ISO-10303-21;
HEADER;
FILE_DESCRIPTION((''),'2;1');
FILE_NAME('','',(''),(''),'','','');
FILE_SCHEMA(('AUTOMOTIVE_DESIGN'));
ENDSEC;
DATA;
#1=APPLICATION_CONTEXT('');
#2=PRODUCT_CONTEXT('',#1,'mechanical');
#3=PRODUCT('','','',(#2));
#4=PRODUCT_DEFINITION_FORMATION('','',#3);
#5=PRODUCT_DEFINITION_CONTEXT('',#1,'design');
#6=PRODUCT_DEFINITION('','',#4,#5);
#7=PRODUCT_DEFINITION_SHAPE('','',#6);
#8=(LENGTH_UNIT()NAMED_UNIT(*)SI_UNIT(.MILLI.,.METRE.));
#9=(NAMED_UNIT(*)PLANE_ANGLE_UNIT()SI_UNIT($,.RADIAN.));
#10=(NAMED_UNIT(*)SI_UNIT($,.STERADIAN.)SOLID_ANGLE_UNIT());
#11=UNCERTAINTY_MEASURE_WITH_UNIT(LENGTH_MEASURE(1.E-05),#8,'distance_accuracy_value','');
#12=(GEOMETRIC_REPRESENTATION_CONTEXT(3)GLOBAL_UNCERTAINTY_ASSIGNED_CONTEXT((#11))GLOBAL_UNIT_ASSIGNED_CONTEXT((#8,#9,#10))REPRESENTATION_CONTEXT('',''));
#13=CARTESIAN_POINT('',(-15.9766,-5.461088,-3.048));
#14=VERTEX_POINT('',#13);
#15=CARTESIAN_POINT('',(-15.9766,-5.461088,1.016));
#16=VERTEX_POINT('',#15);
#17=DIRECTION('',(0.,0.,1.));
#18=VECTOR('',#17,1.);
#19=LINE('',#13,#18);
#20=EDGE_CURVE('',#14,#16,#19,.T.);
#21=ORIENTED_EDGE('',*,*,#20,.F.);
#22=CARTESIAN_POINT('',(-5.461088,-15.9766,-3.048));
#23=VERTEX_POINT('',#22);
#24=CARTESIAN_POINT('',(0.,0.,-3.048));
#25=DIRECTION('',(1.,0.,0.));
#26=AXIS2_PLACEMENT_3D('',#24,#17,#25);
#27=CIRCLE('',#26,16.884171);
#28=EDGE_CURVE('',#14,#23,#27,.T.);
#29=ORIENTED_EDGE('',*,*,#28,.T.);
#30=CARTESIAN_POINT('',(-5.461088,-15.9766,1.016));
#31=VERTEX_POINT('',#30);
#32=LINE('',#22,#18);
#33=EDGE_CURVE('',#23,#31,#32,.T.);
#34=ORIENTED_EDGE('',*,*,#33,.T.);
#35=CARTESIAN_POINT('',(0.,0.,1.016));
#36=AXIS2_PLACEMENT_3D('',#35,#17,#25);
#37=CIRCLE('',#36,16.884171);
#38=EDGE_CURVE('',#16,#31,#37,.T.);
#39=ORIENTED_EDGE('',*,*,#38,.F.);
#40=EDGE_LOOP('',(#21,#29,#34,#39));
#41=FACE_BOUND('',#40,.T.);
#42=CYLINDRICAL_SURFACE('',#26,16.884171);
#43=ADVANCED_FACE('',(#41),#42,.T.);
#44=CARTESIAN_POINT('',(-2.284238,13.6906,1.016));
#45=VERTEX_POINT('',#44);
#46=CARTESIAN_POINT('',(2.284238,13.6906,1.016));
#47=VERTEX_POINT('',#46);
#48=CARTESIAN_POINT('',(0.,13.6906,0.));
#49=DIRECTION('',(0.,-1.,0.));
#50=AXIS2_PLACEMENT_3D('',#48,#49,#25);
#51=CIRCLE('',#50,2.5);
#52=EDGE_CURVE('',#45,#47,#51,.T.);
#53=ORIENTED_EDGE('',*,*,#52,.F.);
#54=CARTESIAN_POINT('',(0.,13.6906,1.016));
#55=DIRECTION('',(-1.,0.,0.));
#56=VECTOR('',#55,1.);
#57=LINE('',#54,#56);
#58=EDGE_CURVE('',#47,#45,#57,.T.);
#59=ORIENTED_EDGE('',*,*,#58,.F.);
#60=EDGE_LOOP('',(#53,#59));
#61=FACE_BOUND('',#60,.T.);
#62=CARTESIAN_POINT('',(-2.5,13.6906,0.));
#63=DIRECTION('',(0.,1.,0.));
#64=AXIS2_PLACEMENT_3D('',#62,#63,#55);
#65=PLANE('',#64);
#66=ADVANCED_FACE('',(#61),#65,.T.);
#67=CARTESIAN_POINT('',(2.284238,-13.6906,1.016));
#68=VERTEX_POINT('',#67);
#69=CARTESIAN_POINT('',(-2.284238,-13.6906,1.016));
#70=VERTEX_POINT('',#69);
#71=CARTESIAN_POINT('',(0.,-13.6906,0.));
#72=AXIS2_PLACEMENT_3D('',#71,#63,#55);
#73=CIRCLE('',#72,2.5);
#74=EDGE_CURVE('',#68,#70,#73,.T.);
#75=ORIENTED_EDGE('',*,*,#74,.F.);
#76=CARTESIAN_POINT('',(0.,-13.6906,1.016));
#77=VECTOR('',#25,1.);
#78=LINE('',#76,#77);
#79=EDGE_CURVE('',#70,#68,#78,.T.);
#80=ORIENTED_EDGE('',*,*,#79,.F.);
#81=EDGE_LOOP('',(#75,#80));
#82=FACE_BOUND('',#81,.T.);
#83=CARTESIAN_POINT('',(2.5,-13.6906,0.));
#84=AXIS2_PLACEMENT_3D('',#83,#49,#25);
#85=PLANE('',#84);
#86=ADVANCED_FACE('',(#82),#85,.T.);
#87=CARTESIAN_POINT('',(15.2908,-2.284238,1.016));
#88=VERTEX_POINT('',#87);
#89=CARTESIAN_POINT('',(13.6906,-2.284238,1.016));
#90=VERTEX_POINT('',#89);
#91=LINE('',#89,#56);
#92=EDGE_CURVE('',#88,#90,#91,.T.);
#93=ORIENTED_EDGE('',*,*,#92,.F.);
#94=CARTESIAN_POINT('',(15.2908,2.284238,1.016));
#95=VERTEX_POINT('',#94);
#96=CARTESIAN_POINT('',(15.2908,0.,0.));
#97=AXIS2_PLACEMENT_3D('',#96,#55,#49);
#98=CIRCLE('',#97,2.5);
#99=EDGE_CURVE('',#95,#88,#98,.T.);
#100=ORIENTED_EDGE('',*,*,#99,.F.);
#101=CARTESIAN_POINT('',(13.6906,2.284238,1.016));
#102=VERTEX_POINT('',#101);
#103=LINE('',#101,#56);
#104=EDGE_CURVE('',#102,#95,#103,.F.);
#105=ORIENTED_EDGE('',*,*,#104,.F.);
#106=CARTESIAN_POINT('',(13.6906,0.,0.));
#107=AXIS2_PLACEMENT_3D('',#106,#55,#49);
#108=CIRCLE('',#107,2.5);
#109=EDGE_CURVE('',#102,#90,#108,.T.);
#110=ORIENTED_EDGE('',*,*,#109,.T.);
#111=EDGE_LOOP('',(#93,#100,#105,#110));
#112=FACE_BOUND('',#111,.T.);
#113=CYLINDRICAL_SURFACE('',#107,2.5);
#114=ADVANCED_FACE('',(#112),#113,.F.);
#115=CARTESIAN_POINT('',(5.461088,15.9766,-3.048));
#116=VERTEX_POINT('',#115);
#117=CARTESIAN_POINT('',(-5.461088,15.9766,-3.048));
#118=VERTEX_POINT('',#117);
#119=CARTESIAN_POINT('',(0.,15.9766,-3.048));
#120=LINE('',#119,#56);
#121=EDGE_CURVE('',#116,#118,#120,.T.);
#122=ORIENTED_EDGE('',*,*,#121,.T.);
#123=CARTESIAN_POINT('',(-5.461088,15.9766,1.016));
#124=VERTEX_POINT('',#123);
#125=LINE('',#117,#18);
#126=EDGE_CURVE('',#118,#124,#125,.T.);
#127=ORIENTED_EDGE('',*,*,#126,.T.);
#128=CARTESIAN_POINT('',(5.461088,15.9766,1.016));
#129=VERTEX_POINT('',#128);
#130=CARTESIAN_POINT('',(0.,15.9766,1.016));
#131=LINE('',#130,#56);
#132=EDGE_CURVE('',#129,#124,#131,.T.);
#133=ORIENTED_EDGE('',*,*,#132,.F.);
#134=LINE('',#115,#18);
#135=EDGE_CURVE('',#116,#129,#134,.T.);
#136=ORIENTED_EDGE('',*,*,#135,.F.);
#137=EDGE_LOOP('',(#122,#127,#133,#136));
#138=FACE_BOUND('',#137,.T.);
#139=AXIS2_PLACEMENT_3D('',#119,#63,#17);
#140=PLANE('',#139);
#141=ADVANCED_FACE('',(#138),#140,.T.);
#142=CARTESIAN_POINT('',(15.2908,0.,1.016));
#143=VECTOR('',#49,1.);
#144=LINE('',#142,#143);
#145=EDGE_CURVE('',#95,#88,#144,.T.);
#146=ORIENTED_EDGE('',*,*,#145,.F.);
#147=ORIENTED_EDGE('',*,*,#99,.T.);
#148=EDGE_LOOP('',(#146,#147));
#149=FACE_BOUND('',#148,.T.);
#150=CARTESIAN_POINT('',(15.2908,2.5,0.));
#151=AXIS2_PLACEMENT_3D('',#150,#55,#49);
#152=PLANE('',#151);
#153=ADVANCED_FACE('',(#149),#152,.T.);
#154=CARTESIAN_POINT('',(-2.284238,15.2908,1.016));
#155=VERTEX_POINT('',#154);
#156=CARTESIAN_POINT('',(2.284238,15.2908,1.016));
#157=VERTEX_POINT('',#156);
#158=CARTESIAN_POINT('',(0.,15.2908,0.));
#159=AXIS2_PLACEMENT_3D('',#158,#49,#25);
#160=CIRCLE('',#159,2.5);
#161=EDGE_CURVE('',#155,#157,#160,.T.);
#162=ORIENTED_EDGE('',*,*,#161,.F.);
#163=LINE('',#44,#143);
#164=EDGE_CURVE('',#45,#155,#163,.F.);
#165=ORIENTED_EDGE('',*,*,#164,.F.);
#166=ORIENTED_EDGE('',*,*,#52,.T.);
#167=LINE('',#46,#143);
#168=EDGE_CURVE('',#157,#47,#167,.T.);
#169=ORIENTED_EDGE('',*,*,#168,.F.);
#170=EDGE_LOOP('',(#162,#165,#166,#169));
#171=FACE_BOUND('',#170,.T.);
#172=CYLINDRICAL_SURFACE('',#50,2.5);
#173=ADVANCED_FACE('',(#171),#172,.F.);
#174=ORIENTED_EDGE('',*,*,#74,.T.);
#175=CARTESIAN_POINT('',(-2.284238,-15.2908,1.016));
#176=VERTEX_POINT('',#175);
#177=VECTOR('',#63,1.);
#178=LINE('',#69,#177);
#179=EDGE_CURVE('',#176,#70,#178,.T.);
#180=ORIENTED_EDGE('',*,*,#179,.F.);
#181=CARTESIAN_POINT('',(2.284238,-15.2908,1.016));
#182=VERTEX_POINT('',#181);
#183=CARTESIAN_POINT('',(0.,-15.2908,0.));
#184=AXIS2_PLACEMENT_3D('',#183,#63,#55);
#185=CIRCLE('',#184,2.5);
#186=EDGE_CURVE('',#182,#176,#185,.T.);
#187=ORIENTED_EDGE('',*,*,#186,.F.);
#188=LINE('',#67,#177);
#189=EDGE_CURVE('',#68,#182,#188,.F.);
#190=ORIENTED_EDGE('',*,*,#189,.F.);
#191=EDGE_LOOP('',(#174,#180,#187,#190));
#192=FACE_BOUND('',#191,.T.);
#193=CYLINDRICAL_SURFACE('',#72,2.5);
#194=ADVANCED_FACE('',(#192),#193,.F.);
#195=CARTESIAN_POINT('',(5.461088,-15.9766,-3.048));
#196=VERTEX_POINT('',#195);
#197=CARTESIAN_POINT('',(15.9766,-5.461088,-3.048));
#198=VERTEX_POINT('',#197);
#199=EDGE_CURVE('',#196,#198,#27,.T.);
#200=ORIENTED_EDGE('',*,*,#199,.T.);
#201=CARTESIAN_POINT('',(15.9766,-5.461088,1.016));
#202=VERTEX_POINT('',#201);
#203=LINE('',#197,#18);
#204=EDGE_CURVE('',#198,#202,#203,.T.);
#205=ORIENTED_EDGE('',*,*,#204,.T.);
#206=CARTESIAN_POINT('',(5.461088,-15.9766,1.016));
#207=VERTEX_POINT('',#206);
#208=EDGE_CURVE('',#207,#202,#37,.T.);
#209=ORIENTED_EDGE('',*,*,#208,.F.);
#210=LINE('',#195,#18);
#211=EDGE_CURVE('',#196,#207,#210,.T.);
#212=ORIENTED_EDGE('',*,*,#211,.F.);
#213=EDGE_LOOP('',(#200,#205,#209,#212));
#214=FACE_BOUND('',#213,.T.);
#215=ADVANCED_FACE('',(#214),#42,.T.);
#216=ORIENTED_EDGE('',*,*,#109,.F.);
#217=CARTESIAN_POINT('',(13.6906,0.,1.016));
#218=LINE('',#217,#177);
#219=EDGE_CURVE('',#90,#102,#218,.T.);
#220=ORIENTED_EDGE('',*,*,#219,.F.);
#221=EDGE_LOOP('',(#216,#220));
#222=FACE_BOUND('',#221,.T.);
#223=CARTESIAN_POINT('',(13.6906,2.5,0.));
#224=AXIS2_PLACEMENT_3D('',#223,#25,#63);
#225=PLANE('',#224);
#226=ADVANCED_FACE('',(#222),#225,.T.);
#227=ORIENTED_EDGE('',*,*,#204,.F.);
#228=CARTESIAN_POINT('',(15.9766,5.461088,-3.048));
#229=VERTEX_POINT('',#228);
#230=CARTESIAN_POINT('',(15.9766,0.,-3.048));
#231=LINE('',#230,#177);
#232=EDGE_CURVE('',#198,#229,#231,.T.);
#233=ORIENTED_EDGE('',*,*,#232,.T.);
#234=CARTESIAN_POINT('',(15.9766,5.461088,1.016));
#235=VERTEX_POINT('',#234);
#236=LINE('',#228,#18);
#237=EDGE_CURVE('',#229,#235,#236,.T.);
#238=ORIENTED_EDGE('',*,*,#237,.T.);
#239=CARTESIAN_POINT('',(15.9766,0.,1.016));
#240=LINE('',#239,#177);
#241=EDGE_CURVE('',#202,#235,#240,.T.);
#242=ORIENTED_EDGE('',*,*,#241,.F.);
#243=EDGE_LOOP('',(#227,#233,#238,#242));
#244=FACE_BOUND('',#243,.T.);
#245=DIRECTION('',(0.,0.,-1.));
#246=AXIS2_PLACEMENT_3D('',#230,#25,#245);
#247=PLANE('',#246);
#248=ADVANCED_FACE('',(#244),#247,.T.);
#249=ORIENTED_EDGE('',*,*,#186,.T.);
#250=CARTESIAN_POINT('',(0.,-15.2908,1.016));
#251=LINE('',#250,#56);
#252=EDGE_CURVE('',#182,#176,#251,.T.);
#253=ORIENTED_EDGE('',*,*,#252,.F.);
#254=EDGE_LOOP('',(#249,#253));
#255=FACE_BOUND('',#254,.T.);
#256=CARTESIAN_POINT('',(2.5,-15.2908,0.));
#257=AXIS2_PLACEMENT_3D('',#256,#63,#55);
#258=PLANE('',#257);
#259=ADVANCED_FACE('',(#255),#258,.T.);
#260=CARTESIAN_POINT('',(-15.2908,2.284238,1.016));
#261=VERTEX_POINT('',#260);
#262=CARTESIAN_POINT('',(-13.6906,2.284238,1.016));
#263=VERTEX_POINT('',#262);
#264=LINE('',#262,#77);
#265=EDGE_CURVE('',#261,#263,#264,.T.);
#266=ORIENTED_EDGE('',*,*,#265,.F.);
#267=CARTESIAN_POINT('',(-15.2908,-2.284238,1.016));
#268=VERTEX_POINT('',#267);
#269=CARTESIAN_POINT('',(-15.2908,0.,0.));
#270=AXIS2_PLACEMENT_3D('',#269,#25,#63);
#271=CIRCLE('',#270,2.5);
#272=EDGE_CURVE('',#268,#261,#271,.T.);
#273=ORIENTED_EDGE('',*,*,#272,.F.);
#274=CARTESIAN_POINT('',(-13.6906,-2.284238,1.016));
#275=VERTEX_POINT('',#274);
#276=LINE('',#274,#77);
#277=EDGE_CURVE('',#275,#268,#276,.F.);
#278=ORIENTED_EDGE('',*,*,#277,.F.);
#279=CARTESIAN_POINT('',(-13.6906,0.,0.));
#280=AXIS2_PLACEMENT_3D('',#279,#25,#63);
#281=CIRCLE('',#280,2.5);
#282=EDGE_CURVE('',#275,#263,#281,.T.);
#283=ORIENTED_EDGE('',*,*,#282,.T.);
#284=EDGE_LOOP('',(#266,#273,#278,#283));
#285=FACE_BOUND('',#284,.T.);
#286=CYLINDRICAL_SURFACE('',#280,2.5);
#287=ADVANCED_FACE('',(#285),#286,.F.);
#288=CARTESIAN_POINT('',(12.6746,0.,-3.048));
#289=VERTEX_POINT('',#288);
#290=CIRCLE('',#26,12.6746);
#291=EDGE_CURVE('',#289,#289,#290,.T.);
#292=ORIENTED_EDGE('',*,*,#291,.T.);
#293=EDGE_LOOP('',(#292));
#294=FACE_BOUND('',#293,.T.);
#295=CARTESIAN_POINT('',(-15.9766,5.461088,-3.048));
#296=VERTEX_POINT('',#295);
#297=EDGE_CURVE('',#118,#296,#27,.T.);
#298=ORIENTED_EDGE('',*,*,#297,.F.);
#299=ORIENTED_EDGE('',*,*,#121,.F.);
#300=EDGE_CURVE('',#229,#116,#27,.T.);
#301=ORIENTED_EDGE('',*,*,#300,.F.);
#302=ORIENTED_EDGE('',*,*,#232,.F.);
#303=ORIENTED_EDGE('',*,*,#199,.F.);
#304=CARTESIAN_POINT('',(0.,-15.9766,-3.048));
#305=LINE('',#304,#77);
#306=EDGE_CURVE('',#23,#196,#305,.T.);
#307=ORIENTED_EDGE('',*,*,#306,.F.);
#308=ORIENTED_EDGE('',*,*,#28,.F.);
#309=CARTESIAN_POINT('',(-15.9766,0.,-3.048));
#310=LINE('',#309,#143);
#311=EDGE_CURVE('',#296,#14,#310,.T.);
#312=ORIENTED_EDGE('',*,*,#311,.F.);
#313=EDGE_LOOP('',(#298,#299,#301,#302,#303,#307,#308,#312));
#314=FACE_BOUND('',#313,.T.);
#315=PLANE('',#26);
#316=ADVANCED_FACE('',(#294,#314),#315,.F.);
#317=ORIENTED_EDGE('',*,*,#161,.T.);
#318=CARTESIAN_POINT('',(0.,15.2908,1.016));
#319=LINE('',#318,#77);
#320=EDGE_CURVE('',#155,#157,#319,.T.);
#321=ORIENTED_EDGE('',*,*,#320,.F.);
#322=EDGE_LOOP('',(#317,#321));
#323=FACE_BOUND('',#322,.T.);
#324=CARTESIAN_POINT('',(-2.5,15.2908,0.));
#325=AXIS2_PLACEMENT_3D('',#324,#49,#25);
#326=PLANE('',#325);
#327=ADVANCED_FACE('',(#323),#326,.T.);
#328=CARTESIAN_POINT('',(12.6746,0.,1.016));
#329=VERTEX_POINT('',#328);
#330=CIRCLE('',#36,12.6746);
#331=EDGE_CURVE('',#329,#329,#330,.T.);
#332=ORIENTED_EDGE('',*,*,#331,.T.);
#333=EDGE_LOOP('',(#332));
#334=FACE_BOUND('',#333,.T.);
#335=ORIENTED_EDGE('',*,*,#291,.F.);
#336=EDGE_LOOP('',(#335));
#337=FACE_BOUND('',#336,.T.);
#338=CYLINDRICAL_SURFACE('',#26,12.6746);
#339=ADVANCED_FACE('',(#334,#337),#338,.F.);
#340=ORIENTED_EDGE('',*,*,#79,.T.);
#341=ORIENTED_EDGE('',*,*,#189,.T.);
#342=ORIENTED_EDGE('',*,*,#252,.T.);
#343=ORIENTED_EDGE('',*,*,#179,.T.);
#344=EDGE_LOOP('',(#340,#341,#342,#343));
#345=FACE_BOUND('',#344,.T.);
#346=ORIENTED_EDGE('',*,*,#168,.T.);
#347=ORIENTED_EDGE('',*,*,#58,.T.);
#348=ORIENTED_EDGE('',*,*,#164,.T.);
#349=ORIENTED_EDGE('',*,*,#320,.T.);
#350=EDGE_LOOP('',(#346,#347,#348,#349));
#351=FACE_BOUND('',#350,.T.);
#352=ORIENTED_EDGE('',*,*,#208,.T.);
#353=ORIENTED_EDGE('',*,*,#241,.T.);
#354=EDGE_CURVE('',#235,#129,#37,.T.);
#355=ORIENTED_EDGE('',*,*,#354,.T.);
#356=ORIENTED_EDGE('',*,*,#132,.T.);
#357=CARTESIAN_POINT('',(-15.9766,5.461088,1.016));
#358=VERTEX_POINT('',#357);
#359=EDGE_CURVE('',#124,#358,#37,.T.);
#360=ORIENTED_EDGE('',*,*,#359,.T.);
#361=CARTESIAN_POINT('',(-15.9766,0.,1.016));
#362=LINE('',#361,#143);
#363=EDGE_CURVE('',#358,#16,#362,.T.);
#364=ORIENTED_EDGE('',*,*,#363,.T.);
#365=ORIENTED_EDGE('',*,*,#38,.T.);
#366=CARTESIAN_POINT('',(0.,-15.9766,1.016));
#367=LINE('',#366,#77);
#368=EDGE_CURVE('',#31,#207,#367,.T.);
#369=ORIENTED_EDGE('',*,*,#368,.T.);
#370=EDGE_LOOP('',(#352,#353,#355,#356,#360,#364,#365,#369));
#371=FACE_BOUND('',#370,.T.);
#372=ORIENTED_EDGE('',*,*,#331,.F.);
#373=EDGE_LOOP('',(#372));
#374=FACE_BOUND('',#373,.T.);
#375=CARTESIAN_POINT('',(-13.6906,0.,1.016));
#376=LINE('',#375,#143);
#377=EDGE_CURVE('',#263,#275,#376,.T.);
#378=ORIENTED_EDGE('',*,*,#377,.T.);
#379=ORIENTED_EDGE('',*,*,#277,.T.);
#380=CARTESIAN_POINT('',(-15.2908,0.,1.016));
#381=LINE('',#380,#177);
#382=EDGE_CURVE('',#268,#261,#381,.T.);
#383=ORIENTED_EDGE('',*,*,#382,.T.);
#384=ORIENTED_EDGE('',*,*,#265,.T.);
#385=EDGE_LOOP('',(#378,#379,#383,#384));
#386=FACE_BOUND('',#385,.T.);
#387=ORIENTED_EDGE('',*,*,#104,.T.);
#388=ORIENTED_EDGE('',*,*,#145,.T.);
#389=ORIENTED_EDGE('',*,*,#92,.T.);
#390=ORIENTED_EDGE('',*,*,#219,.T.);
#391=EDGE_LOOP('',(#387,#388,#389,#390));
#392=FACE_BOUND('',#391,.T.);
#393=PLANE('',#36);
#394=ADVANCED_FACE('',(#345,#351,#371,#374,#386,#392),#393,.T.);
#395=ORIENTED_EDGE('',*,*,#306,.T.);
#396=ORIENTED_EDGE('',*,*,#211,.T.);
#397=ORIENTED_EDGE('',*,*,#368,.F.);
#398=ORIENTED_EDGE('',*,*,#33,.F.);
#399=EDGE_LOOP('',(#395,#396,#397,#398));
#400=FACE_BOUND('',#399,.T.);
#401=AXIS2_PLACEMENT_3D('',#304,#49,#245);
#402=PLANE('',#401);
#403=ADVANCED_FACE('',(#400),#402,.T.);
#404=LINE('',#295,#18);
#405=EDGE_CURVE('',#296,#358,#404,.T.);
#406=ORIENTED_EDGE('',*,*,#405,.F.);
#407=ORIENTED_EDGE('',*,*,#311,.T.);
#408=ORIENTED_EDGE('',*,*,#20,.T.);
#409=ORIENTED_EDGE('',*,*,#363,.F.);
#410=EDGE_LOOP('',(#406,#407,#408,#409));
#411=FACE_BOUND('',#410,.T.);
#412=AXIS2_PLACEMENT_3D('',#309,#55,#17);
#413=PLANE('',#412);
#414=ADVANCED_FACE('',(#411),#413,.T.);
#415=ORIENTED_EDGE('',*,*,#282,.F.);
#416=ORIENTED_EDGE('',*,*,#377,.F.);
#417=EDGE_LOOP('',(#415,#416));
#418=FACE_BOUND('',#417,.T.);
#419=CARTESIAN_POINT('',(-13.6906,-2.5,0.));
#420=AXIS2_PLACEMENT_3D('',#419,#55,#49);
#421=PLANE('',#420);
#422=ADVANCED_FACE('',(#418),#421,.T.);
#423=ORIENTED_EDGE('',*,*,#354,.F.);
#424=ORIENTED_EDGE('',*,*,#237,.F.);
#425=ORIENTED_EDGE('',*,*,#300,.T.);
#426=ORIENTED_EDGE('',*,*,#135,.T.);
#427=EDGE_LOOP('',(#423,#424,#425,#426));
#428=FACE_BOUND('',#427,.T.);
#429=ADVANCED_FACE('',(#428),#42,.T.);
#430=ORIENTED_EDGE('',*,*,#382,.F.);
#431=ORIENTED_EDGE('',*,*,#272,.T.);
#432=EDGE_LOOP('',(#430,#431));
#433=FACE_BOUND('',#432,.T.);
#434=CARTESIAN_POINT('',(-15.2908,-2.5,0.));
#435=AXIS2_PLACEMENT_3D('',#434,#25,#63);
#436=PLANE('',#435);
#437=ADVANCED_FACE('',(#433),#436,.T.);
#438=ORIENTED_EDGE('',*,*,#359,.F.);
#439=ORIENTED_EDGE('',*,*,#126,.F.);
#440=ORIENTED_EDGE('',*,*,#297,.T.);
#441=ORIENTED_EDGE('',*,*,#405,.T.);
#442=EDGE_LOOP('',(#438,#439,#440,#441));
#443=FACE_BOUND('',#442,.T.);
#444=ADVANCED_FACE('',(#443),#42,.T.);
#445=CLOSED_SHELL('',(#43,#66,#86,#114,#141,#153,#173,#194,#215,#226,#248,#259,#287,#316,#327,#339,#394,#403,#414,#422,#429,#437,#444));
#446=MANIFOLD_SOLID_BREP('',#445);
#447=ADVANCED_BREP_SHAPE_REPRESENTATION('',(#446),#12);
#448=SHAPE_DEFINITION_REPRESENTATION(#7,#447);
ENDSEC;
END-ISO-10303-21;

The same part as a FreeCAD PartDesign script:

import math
import FreeCAD as App
import Part
import Sketcher
Q = App.Units.Quantity

doc = App.newDocument("Part")
params = doc.addObject("Spreadsheet::Sheet", "Params")
for row, (alias, value) in enumerate([
    ("sketch1_diameter", "0.998 in"),
    ("pad1_length", "0.04 in"),
    ("pad1_length2", "0.12 in"),
    ("sketch2_width", "0.063 in"),
    ("groove_angle", "360 deg"),
], start=1):
    params.set(f"A{row}", alias)
    params.set(f"B{row}", "=" + value)
    params.setAlias(f"B{row}", alias)

body = doc.addObject("PartDesign::Body", "Body")

# Sketch on XY plane
sketch1 = doc.addObject("Sketcher::SketchObject", "Sketch")
body.addObject(sketch1)
sketch1.AttachmentSupport = (doc.XY_Plane, [""])
sketch1.MapMode = "FlatFace"
sketch1.addGeometry([
    Part.ArcOfCircle(Part.Circle(App.Vector(0, 0, 0), App.Vector(0, 0, 1), 16.884171), math.radians(108.871348), math.radians(161.128652)),  # 0
    Part.LineSegment(App.Vector(-15.9766, 5.461088, 0), App.Vector(-15.9766, -5.461088, 0)),  # 1
    Part.ArcOfCircle(Part.Circle(App.Vector(0, 0, 0), App.Vector(0, 0, 1), 16.884171), math.radians(-161.128652), math.radians(-108.871348)),  # 2
    Part.LineSegment(App.Vector(-5.461088, -15.9766, 0), App.Vector(5.461088, -15.9766, 0)),  # 3
    Part.ArcOfCircle(Part.Circle(App.Vector(0, 0, 0), App.Vector(0, 0, 1), 16.884171), math.radians(-71.128652), math.radians(-18.871348)),  # 4
    Part.LineSegment(App.Vector(15.9766, -5.461088, 0), App.Vector(15.9766, 5.461088, 0)),  # 5
    Part.ArcOfCircle(Part.Circle(App.Vector(0, 0, 0), App.Vector(0, 0, 1), 16.884171), math.radians(18.871348), math.radians(71.128652)),  # 6
    Part.LineSegment(App.Vector(5.461088, 15.9766, 0), App.Vector(-5.461088, 15.9766, 0)),  # 7
    Part.Circle(App.Vector(0, 0, 0), App.Vector(0, 0, 1), 12.6746),  # 8
], False)
sketch1.addConstraint([
    Sketcher.Constraint("Coincident", 0, 2, 1, 1),
    Sketcher.Constraint("Coincident", 1, 2, 2, 1),
    Sketcher.Constraint("Coincident", 2, 2, 3, 1),
    Sketcher.Constraint("Coincident", 3, 2, 4, 1),
    Sketcher.Constraint("Coincident", 4, 2, 5, 1),
    Sketcher.Constraint("Coincident", 5, 2, 6, 1),
    Sketcher.Constraint("Coincident", 6, 2, 7, 1),
    Sketcher.Constraint("Coincident", 7, 2, 0, 1),
    Sketcher.Constraint("Vertical", 1),
    Sketcher.Constraint("Horizontal", 3),
    Sketcher.Constraint("Vertical", 5),
    Sketcher.Constraint("Horizontal", 7),
    Sketcher.Constraint("Coincident", 0, 3, -1, 1),
    Sketcher.Constraint("Coincident", 2, 3, -1, 1),
    Sketcher.Constraint("Coincident", 4, 3, -1, 1),
    Sketcher.Constraint("Coincident", 6, 3, -1, 1),
    Sketcher.Constraint("Coincident", 8, 3, -1, 1),
    Sketcher.Constraint("Equal", 0, 2),
    Sketcher.Constraint("Equal", 2, 4),
    Sketcher.Constraint("Equal", 4, 6),
    Sketcher.Constraint("Horizontal", 1, 2, 4, 2),
    Sketcher.Constraint("Vertical", 3, 2, 6, 2),
    Sketcher.Constraint("Equal", 7, 1),
    Sketcher.Constraint("Diameter", 8, Q("0.998 in")),
    Sketcher.Constraint("DistanceX", 0, 2, -1, 1, Q("0.629 in")),
    Sketcher.Constraint("Radius", 0, 16.884171),
])
sketch1.setExpression("Constraints[23]", "Params.sketch1_diameter")
pad1 = doc.addObject("PartDesign::Pad", "Pad")
body.addObject(pad1)
pad1.Profile = sketch1
pad1.Type = "TwoLengths"
pad1.setExpression("Length", "Params.pad1_length")
pad1.setExpression("Length2", "Params.pad1_length2")

# Sketch on XY plane
sketch2 = doc.addObject("Sketcher::SketchObject", "Sketch001")
body.addObject(sketch2)
sketch2.AttachmentSupport = (doc.XY_Plane, [""])
sketch2.MapMode = "FlatFace"
sketch2.addGeometry([
    Part.LineSegment(App.Vector(-15.2908, 0, 0), App.Vector(-15.2908, -2.5, 0)),
    Part.LineSegment(App.Vector(-15.2908, -2.5, 0), App.Vector(-13.6906, -2.5, 0)),
    Part.LineSegment(App.Vector(-13.6906, -2.5, 0), App.Vector(-13.6906, 0, 0)),
    Part.LineSegment(App.Vector(-13.6906, 0, 0), App.Vector(-15.2908, 0, 0)),
], False)
sketch2.addConstraint([
    Sketcher.Constraint("Coincident", 0, 2, 1, 1),
    Sketcher.Constraint("Coincident", 1, 2, 2, 1),
    Sketcher.Constraint("Coincident", 2, 2, 3, 1),
    Sketcher.Constraint("Coincident", 3, 2, 0, 1),
    Sketcher.Constraint("Vertical", 0),
    Sketcher.Constraint("Horizontal", 1),
    Sketcher.Constraint("Vertical", 2),
    Sketcher.Constraint("Horizontal", 3),
    Sketcher.Constraint("PointOnObject", 2, 2, -1),
    Sketcher.Constraint("DistanceX", 1, 1, 1, 2, Q("0.063 in")),
    Sketcher.Constraint("DistanceX", 0, 2, -1, 1, Q("0.602 in")),
    Sketcher.Constraint("DistanceY", 0, 2, 0, 1, 2.5),
])
sketch2.setExpression("Constraints[9]", "Params.sketch2_width")
groove = doc.addObject("PartDesign::Groove", "Groove")
body.addObject(groove)
groove.Profile = sketch2
groove.ReferenceAxis = (sketch2, ["H_Axis"])
groove.setExpression("Angle", "Params.groove_angle")
doc.recompute()

polarpattern = doc.addObject("PartDesign::PolarPattern", "PolarPattern")
body.addObject(polarpattern)
polarpattern.Originals = [groove]
polarpattern.Axis = (doc.Z_Axis, [""])
polarpattern.Angle = 360
polarpattern.Occurrences = 4
body.Tip = polarpattern

doc.recompute()
